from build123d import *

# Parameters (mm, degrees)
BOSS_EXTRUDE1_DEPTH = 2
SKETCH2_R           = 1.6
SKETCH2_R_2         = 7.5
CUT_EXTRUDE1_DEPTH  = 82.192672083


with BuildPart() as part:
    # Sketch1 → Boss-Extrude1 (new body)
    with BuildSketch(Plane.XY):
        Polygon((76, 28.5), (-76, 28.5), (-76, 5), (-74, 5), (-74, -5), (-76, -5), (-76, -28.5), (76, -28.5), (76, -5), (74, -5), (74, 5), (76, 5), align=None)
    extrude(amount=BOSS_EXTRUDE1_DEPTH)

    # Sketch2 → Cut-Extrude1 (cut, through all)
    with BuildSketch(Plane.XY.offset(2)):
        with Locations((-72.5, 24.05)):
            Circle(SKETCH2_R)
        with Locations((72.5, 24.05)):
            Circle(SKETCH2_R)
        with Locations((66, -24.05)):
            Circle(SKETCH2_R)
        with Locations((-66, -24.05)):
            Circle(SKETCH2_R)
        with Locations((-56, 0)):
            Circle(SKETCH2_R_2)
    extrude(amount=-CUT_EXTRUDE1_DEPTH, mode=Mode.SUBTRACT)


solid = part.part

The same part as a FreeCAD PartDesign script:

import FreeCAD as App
import Part
import Sketcher
Q = App.Units.Quantity

doc = App.newDocument("Part")
params = doc.addObject("Spreadsheet::Sheet", "Params")
for row, (alias, value) in enumerate([
    ("sketch1_width", "152 mm"),
    ("sketch1_width2", "2 mm"),
    ("sketch1_height", "10 mm"),
    ("sketch1_height2", "23.5 mm"),
    ("pad1_length", "2 mm"),
    ("sketch2_diameter", "15 mm"),
    ("sketch2_diameter2", "3.2 mm"),
], start=1):
    params.set(f"A{row}", alias)
    params.set(f"B{row}", "=" + value)
    params.setAlias(f"B{row}", alias)

body = doc.addObject("PartDesign::Body", "Body")

sketch1 = body.newObject("Sketcher::SketchObject", "Sketch")
sketch1.AttachmentSupport = (doc.getObject("XY_Plane"), [""])
sketch1.MapMode = "FlatFace"
sketch1.addGeometry(Part.LineSegment(App.Vector(76, 28.5, 0), App.Vector(-76, 28.5, 0)), False)
sketch1.addGeometry(Part.LineSegment(App.Vector(-76, 28.5, 0), App.Vector(-76, 5, 0)), False)
sketch1.addGeometry(Part.LineSegment(App.Vector(-76, 5, 0), App.Vector(-74, 5, 0)), False)
sketch1.addGeometry(Part.LineSegment(App.Vector(-74, 5, 0), App.Vector(-74, -5, 0)), False)
sketch1.addGeometry(Part.LineSegment(App.Vector(-74, -5, 0), App.Vector(-76, -5, 0)), False)
sketch1.addGeometry(Part.LineSegment(App.Vector(-76, -5, 0), App.Vector(-76, -28.5, 0)), False)
sketch1.addGeometry(Part.LineSegment(App.Vector(-76, -28.5, 0), App.Vector(76, -28.5, 0)), False)
sketch1.addGeometry(Part.LineSegment(App.Vector(76, -28.5, 0), App.Vector(76, -5, 0)), False)
sketch1.addGeometry(Part.LineSegment(App.Vector(76, -5, 0), App.Vector(74, -5, 0)), False)
sketch1.addGeometry(Part.LineSegment(App.Vector(74, -5, 0), App.Vector(74, 5, 0)), False)
sketch1.addGeometry(Part.LineSegment(App.Vector(74, 5, 0), App.Vector(76, 5, 0)), False)
sketch1.addGeometry(Part.LineSegment(App.Vector(76, 5, 0), App.Vector(76, 28.5, 0)), False)
sketch1.addConstraint(Sketcher.Constraint("Coincident", 0, 2, 1, 1))
sketch1.addConstraint(Sketcher.Constraint("Coincident", 1, 2, 2, 1))
sketch1.addConstraint(Sketcher.Constraint("Coincident", 2, 2, 3, 1))
sketch1.addConstraint(Sketcher.Constraint("Coincident", 3, 2, 4, 1))
sketch1.addConstraint(Sketcher.Constraint("Coincident", 4, 2, 5, 1))
sketch1.addConstraint(Sketcher.Constraint("Coincident", 5, 2, 6, 1))
sketch1.addConstraint(Sketcher.Constraint("Coincident", 6, 2, 7, 1))
sketch1.addConstraint(Sketcher.Constraint("Coincident", 7, 2, 8, 1))
sketch1.addConstraint(Sketcher.Constraint("Coincident", 8, 2, 9, 1))
sketch1.addConstraint(Sketcher.Constraint("Coincident", 9, 2, 10, 1))
sketch1.addConstraint(Sketcher.Constraint("Coincident", 10, 2, 11, 1))
sketch1.addConstraint(Sketcher.Constraint("Coincident", 11, 2, 0, 1))
sketch1.addConstraint(Sketcher.Constraint("Horizontal", 0))
sketch1.addConstraint(Sketcher.Constraint("Vertical", 1))
sketch1.addConstraint(Sketcher.Constraint("Horizontal", 2))
sketch1.addConstraint(Sketcher.Constraint("Vertical", 3))
sketch1.addConstraint(Sketcher.Constraint("Horizontal", 4))
sketch1.addConstraint(Sketcher.Constraint("Vertical", 5))
sketch1.addConstraint(Sketcher.Constraint("Horizontal", 6))
sketch1.addConstraint(Sketcher.Constraint("Vertical", 7))
sketch1.addConstraint(Sketcher.Constraint("Horizontal", 8))
sketch1.addConstraint(Sketcher.Constraint("Vertical", 9))
sketch1.addConstraint(Sketcher.Constraint("Horizontal", 10))
sketch1.addConstraint(Sketcher.Constraint("Vertical", 11))
sketch1.addConstraint(Sketcher.Constraint("Symmetric", 0, 2, 6, 2, -1, 1))
sketch1.addConstraint(Sketcher.Constraint("Symmetric", 2, 2, 8, 2, -1, 1))
sketch1.addConstraint(Sketcher.Constraint("Symmetric", 4, 2, 10, 2, -1, 1))
sketch1.addConstraint(Sketcher.Constraint("Symmetric", 4, 2, 7, 2, -2))
sketch1.addConstraint(Sketcher.Constraint("DistanceX", 0, 2, 0, 1, Q("152 mm")))
sketch1.addConstraint(Sketcher.Constraint("DistanceX", 2, 1, 2, 2, Q("2 mm")))
sketch1.addConstraint(Sketcher.Constraint("DistanceY", 3, 2, 3, 1, Q("10 mm")))
sketch1.addConstraint(Sketcher.Constraint("DistanceY", 1, 2, 1, 1, Q("23.5 mm")))
sketch1.setExpression("Constraints[28]", "Params.sketch1_width")
sketch1.setExpression("Constraints[29]", "Params.sketch1_width2")
sketch1.setExpression("Constraints[30]", "Params.sketch1_height")
sketch1.setExpression("Constraints[31]", "Params.sketch1_height2")
pad1 = body.newObject("PartDesign::Pad", "Pad")
pad1.Profile = sketch1
pad1.setExpression("Length", "Params.pad1_length")

sketch2 = body.newObject("Sketcher::SketchObject", "Sketch001")
sketch2.AttachmentSupport = (doc.getObject("XY_Plane"), [""])
sketch2.MapMode = "FlatFace"
sketch2.AttachmentOffset = App.Placement(App.Vector(0, 0, 2), App.Rotation())
sketch2.addGeometry(Part.Circle(App.Vector(-72.5, 24.05, 0), App.Vector(0, 0, 1), 1.6), False)
sketch2.addGeometry(Part.Circle(App.Vector(72.5, 24.05, 0), App.Vector(0, 0, 1), 1.6), False)
sketch2.addGeometry(Part.Circle(App.Vector(66, -24.05, 0), App.Vector(0, 0, 1), 1.6), False)
sketch2.addGeometry(Part.Circle(App.Vector(-66, -24.05, 0), App.Vector(0, 0, 1), 1.6), False)
sketch2.addGeometry(Part.Circle(App.Vector(-56, 0, 0), App.Vector(0, 0, 1), 7.5), False)
sketch2.addConstraint(Sketcher.Constraint("Equal", 0, 1))
sketch2.addConstraint(Sketcher.Constraint("Equal", 1, 2))
sketch2.addConstraint(Sketcher.Constraint("Equal", 2, 3))
sketch2.addConstraint(Sketcher.Constraint("Symmetric", 0, 3, 1, 3, -2))
sketch2.addConstraint(Sketcher.Constraint("Symmetric", 2, 3, 3, 3, -2))
sketch2.addConstraint(Sketcher.Constraint("PointOnObject", 4, 3, -1))
sketch2.addConstraint(Sketcher.Constraint("Diameter", 4, Q("15 mm")))
sketch2.addConstraint(Sketcher.Constraint("Diameter", 0, Q("3.2 mm")))
sketch2.addConstraint(Sketcher.Constraint("DistanceX", -1, 1, 2, 3, Q("66 mm")))
sketch2.addConstraint(Sketcher.Constraint("DistanceX", 4, 3, -1, 1, Q("56 mm")))
sketch2.addConstraint(Sketcher.Constraint("DistanceX", 0, 3, 1, 3, Q("145 mm")))
sketch2.addConstraint(Sketcher.Constraint("DistanceY", 2, 3, 1, 3, Q("48.1 mm")))
sketch2.addConstraint(Sketcher.Constraint("DistanceY", -1, 1, 0, 3, Q("24.05 mm")))
sketch2.setExpression("Constraints[6]", "Params.sketch2_diameter")
sketch2.setExpression("Constraints[7]", "Params.sketch2_diameter2")
pocket1 = body.newObject("PartDesign::Pocket", "Pocket")
pocket1.Profile = sketch2
pocket1.Type = "ThroughAll"

doc.recompute()
